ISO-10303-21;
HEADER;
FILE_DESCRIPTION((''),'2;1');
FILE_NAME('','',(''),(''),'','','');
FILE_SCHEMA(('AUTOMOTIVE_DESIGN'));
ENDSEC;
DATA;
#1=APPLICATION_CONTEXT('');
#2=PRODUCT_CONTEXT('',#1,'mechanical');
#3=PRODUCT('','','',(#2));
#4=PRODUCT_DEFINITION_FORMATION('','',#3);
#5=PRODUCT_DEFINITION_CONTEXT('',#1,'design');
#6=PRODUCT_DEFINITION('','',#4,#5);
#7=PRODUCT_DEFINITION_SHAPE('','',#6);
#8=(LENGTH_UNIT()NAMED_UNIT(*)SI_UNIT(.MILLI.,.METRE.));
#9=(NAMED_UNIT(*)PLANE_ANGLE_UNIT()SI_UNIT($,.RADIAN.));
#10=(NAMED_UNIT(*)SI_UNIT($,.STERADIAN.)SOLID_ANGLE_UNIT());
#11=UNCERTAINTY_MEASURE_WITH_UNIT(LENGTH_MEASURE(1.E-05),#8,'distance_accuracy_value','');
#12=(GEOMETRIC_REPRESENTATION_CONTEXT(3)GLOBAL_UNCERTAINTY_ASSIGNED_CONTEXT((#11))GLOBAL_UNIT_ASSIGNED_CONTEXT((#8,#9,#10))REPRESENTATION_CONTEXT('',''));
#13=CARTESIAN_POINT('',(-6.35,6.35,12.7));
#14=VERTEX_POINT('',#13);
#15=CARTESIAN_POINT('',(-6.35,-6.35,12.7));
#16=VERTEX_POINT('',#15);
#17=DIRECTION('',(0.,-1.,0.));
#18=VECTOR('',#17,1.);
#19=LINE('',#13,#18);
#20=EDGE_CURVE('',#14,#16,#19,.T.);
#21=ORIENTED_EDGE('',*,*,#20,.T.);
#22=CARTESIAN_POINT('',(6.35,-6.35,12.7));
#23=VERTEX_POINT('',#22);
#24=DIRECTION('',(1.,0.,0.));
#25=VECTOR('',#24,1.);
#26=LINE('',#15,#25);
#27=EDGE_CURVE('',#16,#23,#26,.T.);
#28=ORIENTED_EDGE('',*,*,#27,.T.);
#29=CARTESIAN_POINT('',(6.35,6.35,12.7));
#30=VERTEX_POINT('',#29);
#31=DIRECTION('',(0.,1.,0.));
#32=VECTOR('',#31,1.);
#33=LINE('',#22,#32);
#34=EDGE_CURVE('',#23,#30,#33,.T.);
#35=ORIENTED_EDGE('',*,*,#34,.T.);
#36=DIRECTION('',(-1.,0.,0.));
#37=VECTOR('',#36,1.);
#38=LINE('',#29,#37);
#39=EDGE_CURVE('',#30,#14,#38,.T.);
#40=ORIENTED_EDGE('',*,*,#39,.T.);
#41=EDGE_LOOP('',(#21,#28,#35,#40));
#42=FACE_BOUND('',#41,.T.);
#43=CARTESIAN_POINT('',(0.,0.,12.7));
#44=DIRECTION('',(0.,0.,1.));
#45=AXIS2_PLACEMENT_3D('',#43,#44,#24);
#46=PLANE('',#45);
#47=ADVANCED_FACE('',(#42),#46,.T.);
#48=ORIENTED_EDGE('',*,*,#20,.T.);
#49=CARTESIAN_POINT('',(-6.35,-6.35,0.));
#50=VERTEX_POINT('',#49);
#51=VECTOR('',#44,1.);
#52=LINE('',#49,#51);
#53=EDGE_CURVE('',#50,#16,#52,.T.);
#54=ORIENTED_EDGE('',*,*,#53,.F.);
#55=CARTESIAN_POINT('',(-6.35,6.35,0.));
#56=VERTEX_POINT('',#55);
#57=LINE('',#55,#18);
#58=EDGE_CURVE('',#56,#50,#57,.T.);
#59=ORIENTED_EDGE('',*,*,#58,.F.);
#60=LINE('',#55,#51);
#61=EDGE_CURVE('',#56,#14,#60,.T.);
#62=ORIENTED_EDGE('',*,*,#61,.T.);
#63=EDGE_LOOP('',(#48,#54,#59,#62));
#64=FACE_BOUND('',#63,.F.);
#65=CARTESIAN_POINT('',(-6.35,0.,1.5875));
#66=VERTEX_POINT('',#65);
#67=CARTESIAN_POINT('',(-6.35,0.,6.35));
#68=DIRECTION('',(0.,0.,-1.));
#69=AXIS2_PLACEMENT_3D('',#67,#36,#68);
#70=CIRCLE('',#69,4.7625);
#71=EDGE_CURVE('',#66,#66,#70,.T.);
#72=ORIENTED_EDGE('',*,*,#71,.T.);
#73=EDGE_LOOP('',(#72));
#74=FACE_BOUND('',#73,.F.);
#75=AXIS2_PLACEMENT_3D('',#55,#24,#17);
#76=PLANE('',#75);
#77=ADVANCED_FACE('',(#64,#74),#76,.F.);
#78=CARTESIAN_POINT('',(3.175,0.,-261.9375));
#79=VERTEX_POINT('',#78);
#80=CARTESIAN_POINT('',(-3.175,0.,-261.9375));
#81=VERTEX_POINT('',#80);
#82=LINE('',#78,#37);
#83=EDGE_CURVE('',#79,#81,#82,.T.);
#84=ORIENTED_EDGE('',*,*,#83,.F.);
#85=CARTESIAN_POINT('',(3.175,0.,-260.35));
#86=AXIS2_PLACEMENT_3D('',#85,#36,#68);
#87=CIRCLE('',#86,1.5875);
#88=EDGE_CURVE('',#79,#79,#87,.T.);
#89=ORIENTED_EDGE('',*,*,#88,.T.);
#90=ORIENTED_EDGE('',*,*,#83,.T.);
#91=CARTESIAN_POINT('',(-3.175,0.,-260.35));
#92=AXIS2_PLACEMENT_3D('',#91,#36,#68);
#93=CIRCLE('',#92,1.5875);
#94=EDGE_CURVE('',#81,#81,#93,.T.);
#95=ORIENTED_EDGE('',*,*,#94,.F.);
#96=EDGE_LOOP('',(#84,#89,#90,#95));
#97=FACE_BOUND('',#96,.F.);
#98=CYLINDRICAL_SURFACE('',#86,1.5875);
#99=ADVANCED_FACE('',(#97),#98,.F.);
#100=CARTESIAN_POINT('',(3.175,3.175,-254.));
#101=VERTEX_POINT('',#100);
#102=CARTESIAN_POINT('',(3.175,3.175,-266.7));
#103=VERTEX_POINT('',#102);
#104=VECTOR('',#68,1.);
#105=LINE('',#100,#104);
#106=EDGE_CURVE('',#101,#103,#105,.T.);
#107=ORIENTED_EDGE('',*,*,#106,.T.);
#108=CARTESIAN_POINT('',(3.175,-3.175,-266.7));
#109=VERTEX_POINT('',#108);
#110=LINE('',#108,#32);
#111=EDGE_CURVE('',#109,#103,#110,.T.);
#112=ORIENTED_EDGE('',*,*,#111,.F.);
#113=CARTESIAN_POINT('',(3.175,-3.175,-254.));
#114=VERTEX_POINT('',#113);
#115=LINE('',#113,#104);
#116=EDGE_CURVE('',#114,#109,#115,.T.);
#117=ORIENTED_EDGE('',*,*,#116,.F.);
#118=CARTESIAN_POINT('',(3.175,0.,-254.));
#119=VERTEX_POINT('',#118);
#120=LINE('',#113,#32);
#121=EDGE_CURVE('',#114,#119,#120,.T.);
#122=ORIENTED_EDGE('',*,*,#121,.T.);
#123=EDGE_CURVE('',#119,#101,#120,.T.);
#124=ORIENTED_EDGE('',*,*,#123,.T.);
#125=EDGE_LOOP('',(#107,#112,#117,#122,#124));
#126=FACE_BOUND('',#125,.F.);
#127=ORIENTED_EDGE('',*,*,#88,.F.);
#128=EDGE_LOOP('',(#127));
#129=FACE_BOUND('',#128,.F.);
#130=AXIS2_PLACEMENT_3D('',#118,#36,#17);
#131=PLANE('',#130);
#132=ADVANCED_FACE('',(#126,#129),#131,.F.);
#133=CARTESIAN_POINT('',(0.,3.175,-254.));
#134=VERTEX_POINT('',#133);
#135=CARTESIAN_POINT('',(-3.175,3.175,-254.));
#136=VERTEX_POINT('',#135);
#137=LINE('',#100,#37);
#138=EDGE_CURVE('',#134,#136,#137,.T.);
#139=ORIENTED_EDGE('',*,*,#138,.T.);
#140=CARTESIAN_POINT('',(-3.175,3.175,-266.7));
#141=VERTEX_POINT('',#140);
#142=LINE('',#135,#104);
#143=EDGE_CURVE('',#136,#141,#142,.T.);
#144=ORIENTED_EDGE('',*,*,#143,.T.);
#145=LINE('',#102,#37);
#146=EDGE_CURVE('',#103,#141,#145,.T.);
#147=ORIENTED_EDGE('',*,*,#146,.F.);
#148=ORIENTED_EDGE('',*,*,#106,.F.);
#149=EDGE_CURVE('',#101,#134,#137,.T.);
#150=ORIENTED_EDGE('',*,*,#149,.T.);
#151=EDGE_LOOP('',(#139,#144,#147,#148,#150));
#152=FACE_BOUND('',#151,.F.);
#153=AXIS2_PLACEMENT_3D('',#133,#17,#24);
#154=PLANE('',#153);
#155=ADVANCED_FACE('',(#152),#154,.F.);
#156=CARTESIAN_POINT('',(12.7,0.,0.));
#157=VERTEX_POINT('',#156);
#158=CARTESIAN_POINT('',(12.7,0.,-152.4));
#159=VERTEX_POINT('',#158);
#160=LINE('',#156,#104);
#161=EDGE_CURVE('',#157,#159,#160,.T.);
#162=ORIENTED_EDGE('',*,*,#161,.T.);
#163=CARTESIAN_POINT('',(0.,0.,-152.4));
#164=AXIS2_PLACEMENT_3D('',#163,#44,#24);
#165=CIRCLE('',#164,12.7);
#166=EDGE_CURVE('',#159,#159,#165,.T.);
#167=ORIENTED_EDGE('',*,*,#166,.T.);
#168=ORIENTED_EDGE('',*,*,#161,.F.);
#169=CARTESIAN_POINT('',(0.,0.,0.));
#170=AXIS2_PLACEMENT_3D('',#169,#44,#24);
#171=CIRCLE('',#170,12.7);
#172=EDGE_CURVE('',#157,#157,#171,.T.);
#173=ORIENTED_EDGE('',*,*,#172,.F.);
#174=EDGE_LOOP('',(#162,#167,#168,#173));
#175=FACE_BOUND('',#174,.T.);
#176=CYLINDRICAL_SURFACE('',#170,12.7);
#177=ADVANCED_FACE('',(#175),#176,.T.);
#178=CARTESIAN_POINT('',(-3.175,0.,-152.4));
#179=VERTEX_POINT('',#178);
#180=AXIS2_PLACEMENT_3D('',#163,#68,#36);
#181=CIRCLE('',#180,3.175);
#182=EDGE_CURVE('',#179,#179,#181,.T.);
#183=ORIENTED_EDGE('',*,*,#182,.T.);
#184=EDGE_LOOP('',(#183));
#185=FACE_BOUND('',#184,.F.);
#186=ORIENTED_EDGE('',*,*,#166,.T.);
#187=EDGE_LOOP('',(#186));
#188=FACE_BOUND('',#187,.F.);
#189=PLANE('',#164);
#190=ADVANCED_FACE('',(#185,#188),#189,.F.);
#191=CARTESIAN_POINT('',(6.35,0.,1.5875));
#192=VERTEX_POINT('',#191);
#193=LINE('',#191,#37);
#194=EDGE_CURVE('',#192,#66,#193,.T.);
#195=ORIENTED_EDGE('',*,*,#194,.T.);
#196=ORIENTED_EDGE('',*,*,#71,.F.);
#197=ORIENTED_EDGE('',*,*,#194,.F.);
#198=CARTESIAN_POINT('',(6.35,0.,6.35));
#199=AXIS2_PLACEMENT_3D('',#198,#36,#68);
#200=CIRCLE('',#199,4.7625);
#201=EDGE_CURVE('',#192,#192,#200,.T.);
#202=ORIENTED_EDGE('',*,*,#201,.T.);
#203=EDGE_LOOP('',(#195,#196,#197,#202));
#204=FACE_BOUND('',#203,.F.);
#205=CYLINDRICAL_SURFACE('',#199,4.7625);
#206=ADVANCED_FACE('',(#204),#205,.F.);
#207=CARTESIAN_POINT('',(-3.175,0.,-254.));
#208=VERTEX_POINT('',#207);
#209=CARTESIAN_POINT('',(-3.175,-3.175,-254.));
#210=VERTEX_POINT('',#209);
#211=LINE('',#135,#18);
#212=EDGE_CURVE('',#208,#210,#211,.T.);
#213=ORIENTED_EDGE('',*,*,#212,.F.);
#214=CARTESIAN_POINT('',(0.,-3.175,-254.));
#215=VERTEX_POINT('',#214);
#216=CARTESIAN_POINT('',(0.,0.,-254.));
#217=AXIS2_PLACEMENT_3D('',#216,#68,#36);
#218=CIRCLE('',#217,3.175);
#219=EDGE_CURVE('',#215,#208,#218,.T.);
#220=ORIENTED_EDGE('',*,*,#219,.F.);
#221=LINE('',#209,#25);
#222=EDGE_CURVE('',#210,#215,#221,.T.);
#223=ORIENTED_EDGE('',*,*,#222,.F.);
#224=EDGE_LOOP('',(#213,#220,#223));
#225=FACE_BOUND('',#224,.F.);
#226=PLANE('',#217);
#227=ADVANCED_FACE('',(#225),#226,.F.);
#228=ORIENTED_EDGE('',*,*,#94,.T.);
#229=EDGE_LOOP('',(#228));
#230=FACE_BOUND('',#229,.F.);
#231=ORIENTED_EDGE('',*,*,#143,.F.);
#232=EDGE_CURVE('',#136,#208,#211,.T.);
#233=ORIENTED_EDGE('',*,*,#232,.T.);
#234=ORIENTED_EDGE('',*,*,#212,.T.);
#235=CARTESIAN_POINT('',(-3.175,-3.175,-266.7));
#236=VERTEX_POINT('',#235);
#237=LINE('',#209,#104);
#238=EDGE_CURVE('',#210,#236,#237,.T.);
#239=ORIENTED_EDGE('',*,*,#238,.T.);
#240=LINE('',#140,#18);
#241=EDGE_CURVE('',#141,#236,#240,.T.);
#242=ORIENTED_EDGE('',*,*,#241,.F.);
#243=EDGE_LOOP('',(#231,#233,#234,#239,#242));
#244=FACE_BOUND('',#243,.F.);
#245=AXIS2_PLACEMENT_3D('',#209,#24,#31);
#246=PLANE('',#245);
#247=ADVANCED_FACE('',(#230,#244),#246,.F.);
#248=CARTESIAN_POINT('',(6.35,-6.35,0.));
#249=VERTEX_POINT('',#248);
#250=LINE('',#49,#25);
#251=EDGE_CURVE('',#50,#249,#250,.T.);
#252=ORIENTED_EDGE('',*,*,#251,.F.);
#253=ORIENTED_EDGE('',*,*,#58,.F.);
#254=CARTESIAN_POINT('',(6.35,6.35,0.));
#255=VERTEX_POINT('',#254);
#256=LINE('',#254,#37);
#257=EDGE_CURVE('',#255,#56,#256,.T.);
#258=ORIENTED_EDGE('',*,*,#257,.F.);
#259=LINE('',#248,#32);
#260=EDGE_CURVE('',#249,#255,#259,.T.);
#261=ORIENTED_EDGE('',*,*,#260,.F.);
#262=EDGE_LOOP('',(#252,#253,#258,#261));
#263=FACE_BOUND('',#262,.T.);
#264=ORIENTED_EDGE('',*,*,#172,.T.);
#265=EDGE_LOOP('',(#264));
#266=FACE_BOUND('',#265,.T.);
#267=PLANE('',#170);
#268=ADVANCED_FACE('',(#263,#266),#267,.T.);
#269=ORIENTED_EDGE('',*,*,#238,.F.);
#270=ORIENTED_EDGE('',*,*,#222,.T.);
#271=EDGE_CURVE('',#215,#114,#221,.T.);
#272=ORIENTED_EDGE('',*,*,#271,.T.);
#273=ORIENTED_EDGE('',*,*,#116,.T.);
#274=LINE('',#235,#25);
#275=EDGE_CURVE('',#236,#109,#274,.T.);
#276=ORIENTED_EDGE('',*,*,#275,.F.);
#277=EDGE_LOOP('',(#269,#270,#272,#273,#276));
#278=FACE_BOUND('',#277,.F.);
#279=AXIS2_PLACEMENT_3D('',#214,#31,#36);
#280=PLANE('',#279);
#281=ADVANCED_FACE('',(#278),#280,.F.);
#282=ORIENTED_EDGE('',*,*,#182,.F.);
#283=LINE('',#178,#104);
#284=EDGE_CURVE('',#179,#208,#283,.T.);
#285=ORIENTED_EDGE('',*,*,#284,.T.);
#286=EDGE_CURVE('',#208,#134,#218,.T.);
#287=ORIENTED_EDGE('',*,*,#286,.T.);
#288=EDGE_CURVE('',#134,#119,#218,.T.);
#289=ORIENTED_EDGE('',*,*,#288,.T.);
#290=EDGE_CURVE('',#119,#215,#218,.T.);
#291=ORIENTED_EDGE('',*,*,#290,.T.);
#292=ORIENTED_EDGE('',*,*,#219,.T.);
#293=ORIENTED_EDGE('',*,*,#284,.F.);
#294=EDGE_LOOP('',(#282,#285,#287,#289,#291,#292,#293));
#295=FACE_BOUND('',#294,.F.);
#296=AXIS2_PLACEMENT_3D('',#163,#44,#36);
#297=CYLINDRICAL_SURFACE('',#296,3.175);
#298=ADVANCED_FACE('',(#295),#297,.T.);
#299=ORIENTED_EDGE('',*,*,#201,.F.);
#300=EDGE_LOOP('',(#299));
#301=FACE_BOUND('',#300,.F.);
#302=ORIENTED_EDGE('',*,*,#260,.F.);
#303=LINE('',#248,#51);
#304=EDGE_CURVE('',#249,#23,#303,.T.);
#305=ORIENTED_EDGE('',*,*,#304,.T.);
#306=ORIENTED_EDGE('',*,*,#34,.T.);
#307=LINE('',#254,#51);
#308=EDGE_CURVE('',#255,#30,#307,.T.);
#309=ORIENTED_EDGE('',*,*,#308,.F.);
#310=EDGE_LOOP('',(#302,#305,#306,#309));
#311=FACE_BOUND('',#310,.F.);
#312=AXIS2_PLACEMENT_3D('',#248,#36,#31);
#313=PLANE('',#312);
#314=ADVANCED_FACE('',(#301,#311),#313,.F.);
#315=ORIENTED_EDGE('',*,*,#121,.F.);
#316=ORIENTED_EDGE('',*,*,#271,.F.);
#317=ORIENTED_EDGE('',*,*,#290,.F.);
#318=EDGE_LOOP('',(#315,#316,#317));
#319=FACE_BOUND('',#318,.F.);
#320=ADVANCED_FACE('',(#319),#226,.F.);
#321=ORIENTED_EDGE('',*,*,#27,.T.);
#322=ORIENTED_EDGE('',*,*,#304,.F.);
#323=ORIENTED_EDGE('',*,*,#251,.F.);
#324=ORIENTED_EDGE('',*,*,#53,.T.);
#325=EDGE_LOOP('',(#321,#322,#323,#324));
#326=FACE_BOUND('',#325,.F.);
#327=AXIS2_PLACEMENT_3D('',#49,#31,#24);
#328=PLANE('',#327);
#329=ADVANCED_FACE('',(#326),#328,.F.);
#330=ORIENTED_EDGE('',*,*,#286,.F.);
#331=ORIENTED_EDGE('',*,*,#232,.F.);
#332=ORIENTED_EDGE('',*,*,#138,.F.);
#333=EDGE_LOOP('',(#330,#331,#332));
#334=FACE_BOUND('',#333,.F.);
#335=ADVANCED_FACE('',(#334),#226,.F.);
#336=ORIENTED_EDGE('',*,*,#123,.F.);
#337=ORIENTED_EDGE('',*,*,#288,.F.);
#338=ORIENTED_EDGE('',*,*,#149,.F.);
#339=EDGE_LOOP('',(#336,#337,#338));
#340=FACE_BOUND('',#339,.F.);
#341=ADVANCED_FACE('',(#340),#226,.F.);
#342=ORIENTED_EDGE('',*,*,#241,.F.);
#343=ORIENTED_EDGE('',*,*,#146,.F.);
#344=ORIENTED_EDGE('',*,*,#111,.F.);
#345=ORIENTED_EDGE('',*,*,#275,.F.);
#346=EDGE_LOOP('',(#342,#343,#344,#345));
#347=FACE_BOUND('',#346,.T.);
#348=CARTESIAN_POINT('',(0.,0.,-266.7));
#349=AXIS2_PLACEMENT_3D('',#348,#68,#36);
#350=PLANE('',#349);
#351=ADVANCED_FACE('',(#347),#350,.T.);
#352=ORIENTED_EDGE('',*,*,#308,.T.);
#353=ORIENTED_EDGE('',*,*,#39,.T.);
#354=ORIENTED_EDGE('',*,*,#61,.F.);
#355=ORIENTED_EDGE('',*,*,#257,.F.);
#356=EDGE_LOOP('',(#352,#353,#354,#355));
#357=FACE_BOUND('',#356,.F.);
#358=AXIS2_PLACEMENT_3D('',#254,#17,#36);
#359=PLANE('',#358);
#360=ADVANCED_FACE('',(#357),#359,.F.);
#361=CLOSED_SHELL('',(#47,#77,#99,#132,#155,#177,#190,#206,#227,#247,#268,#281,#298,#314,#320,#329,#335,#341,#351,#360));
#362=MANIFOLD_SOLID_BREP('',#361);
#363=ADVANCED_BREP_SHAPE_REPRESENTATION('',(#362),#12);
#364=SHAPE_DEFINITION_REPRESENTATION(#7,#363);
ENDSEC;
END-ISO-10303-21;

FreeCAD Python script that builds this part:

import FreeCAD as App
import Part
import Sketcher

V = App.Vector
Q = App.Units.Quantity


def add_polygon(sketch, points):
    """Adds a closed chain of lines whose ends are joined by coincident constraints."""
    first, n = sketch.GeometryCount, len(points)
    for a, b in zip(points, points[1:] + points[:1]):
        sketch.addGeometry(Part.LineSegment(App.Vector(*a, 0), App.Vector(*b, 0)), False)
    for i in range(n):
        sketch.addConstraint(Sketcher.Constraint("Coincident", first + i, 2, first + (i + 1) % n, 1))

doc = App.newDocument("Part")
params = doc.addObject("Spreadsheet::Sheet", "Params")
for row, (alias, value) in enumerate([
    ("sketch1_diameter", "1 in"),
    ("pad1_length", "6 in"),
    ("sketch2_width", "0.5 in"),
    ("pad2_length", "0.5 in"),
    ("sketch3_diameter", "0.375 in"),
    ("hole_diameter", "0.375 in"),
    ("hole_depth", "1 in"),
    ("sketch4_diameter", "0.25 in"),
    ("pad3_length", "4 in"),
    ("sketch5_width", "0.25 in"),
    ("pad4_length", "0.5 in"),
    ("sketch6_diameter", "0.125 in"),
    ("hole2_diameter", "0.125 in"),
    ("hole2_depth", "1 in"),
], start=1):
    params.set(f"A{row}", alias)
    params.set(f"B{row}", "=" + value)
    params.setAlias(f"B{row}", alias)

body = doc.addObject("PartDesign::Body", "Body")

# Sketch on XY plane
sketch1 = body.newObject("Sketcher::SketchObject", "Sketch")
sketch1.AttachmentSupport = (doc.getObject("XY_Plane"), [""])
sketch1.MapMode = "FlatFace"
sketch1.addGeometry(Part.Circle(V(0, 0, 0), V(0, 0, 1), 13), False)
sketch1.addConstraint(Sketcher.Constraint("Coincident", 0, 3, -1, 1))
sketch1.addConstraint(Sketcher.Constraint("Diameter", 0, Q("1 in")))
sketch1.setExpression("Constraints[1]", "Params.sketch1_diameter")
pad1 = body.newObject("PartDesign::Pad", "Pad")
pad1.Profile = sketch1
pad1.setExpression("Length", "Params.pad1_length")
pad1.Reversed = True

# Sketch on XY plane
sketch2 = body.newObject("Sketcher::SketchObject", "Sketch001")
sketch2.AttachmentSupport = (doc.getObject("XY_Plane"), [""])
sketch2.MapMode = "FlatFace"
add_polygon(sketch2, [(-6, 6), (-6, -6), (6, -6), (6, 6)])  # lines 0-3
sketch2.addConstraint(Sketcher.Constraint("Vertical", 0))
sketch2.addConstraint(Sketcher.Constraint("Horizontal", 1))
sketch2.addConstraint(Sketcher.Constraint("Vertical", 2))
sketch2.addConstraint(Sketcher.Constraint("Horizontal", 3))
sketch2.addConstraint(Sketcher.Constraint("Symmetric", 0, 2, 2, 2, -1, 1))
sketch2.addConstraint(Sketcher.Constraint("Equal", 3, 0))
sketch2.addConstraint(Sketcher.Constraint("DistanceX", 1, 1, 1, 2, Q("0.5 in")))
sketch2.setExpression("Constraints[10]", "Params.sketch2_width")
pad2 = body.newObject("PartDesign::Pad", "Pad001")
pad2.Profile = sketch2
pad2.setExpression("Length", "Params.pad2_length")

# Sketch on YZ plane
sketch3 = body.newObject("Sketcher::SketchObject", "Sketch002")
sketch3.AttachmentSupport = (doc.getObject("YZ_Plane"), [""])
sketch3.MapMode = "FlatFace"
sketch3.AttachmentOffset = App.Placement(V(0, 0, 0.25 * 25.4), App.Rotation())
sketch3.addGeometry(Part.Circle(V(0, 6.3, 0), V(0, 0, 1), 4.8), False)
sketch3.addConstraint(Sketcher.Constraint("PointOnObject", 0, 3, -2))
sketch3.addConstraint(Sketcher.Constraint("Diameter", 0, Q("0.375 in")))
sketch3.addConstraint(Sketcher.Constraint("DistanceY", -1, 1, 0, 3, Q("0.25 in")))
sketch3.setExpression("Constraints[1]", "Params.sketch3_diameter")
doc.recompute()
hole = body.newObject("PartDesign::Hole", "Hole")
hole.Profile = sketch3
hole.ThreadType = "None"
hole.setExpression("Diameter", "Params.hole_diameter")
hole.DepthType = "Dimension"
hole.setExpression("Depth", "Params.hole_depth")
hole.DrillPoint = "Angled"
hole.DrillPointAngle = 118

# Sketch on XY plane
sketch4 = body.newObject("Sketcher::SketchObject", "Sketch003")
sketch4.AttachmentSupport = (doc.getObject("XY_Plane"), [""])
sketch4.MapMode = "FlatFace"
sketch4.AttachmentOffset = App.Placement(V(0, 0, -6 * 25.4), App.Rotation())
sketch4.addGeometry(Part.Circle(V(0, 0, 0), V(0, 0, 1), 3.2), False)
sketch4.addConstraint(Sketcher.Constraint("Coincident", 0, 3, -1, 1))
sketch4.addConstraint(Sketcher.Constraint("Diameter", 0, Q("0.25 in")))
sketch4.setExpression("Constraints[1]", "Params.sketch4_diameter")
pad3 = body.newObject("PartDesign::Pad", "Pad002")
pad3.Profile = sketch4
pad3.setExpression("Length", "Params.pad3_length")
pad3.Reversed = True

# Sketch on XY plane
sketch5 = body.newObject("Sketcher::SketchObject", "Sketch004")
sketch5.AttachmentSupport = (doc.getObject("XY_Plane"), [""])
sketch5.MapMode = "FlatFace"
sketch5.AttachmentOffset = App.Placement(V(0, 0, -10 * 25.4), App.Rotation())
add_polygon(sketch5, [(-3, -3), (-3, 3), (3, 3), (3, -3)])  # lines 0-3
sketch5.addConstraint(Sketcher.Constraint("Vertical", 0))
sketch5.addConstraint(Sketcher.Constraint("Horizontal", 1))
sketch5.addConstraint(Sketcher.Constraint("Vertical", 2))
sketch5.addConstraint(Sketcher.Constraint("Horizontal", 3))
sketch5.addConstraint(Sketcher.Constraint("Symmetric", 0, 2, 2, 2, -1, 1))
sketch5.addConstraint(Sketcher.Constraint("Equal", 3, 0))
sketch5.addConstraint(Sketcher.Constraint("DistanceX", 1, 1, 1, 2, Q("0.25 in")))
sketch5.setExpression("Constraints[10]", "Params.sketch5_width")
pad4 = body.newObject("PartDesign::Pad", "Pad003")
pad4.Profile = sketch5
pad4.setExpression("Length", "Params.pad4_length")
pad4.Reversed = True

# Sketch on YZ plane
sketch6 = body.newObject("Sketcher::SketchObject", "Sketch005")
sketch6.AttachmentSupport = (doc.getObject("YZ_Plane"), [""])
sketch6.MapMode = "FlatFace"
sketch6.AttachmentOffset = App.Placement(V(0, 0, 0.125 * 25.4), App.Rotation())
sketch6.addGeometry(Part.Circle(V(0, -260.4, 0), V(0, 0, 1), 1.6), False)
sketch6.addConstraint(Sketcher.Constraint("PointOnObject", 0, 3, -2))
sketch6.addConstraint(Sketcher.Constraint("Diameter", 0, Q("0.125 in")))
sketch6.addConstraint(Sketcher.Constraint("DistanceY", 0, 3, -1, 1, Q("10.25 in")))
sketch6.setExpression("Constraints[1]", "Params.sketch6_diameter")
doc.recompute()
hole2 = body.newObject("PartDesign::Hole", "Hole001")
hole2.Profile = sketch6
hole2.ThreadType = "None"
hole2.setExpression("Diameter", "Params.hole2_diameter")
hole2.DepthType = "Dimension"
hole2.setExpression("Depth", "Params.hole2_depth")
hole2.DrillPoint = "Angled"
hole2.DrillPointAngle = 118

doc.recompute()
